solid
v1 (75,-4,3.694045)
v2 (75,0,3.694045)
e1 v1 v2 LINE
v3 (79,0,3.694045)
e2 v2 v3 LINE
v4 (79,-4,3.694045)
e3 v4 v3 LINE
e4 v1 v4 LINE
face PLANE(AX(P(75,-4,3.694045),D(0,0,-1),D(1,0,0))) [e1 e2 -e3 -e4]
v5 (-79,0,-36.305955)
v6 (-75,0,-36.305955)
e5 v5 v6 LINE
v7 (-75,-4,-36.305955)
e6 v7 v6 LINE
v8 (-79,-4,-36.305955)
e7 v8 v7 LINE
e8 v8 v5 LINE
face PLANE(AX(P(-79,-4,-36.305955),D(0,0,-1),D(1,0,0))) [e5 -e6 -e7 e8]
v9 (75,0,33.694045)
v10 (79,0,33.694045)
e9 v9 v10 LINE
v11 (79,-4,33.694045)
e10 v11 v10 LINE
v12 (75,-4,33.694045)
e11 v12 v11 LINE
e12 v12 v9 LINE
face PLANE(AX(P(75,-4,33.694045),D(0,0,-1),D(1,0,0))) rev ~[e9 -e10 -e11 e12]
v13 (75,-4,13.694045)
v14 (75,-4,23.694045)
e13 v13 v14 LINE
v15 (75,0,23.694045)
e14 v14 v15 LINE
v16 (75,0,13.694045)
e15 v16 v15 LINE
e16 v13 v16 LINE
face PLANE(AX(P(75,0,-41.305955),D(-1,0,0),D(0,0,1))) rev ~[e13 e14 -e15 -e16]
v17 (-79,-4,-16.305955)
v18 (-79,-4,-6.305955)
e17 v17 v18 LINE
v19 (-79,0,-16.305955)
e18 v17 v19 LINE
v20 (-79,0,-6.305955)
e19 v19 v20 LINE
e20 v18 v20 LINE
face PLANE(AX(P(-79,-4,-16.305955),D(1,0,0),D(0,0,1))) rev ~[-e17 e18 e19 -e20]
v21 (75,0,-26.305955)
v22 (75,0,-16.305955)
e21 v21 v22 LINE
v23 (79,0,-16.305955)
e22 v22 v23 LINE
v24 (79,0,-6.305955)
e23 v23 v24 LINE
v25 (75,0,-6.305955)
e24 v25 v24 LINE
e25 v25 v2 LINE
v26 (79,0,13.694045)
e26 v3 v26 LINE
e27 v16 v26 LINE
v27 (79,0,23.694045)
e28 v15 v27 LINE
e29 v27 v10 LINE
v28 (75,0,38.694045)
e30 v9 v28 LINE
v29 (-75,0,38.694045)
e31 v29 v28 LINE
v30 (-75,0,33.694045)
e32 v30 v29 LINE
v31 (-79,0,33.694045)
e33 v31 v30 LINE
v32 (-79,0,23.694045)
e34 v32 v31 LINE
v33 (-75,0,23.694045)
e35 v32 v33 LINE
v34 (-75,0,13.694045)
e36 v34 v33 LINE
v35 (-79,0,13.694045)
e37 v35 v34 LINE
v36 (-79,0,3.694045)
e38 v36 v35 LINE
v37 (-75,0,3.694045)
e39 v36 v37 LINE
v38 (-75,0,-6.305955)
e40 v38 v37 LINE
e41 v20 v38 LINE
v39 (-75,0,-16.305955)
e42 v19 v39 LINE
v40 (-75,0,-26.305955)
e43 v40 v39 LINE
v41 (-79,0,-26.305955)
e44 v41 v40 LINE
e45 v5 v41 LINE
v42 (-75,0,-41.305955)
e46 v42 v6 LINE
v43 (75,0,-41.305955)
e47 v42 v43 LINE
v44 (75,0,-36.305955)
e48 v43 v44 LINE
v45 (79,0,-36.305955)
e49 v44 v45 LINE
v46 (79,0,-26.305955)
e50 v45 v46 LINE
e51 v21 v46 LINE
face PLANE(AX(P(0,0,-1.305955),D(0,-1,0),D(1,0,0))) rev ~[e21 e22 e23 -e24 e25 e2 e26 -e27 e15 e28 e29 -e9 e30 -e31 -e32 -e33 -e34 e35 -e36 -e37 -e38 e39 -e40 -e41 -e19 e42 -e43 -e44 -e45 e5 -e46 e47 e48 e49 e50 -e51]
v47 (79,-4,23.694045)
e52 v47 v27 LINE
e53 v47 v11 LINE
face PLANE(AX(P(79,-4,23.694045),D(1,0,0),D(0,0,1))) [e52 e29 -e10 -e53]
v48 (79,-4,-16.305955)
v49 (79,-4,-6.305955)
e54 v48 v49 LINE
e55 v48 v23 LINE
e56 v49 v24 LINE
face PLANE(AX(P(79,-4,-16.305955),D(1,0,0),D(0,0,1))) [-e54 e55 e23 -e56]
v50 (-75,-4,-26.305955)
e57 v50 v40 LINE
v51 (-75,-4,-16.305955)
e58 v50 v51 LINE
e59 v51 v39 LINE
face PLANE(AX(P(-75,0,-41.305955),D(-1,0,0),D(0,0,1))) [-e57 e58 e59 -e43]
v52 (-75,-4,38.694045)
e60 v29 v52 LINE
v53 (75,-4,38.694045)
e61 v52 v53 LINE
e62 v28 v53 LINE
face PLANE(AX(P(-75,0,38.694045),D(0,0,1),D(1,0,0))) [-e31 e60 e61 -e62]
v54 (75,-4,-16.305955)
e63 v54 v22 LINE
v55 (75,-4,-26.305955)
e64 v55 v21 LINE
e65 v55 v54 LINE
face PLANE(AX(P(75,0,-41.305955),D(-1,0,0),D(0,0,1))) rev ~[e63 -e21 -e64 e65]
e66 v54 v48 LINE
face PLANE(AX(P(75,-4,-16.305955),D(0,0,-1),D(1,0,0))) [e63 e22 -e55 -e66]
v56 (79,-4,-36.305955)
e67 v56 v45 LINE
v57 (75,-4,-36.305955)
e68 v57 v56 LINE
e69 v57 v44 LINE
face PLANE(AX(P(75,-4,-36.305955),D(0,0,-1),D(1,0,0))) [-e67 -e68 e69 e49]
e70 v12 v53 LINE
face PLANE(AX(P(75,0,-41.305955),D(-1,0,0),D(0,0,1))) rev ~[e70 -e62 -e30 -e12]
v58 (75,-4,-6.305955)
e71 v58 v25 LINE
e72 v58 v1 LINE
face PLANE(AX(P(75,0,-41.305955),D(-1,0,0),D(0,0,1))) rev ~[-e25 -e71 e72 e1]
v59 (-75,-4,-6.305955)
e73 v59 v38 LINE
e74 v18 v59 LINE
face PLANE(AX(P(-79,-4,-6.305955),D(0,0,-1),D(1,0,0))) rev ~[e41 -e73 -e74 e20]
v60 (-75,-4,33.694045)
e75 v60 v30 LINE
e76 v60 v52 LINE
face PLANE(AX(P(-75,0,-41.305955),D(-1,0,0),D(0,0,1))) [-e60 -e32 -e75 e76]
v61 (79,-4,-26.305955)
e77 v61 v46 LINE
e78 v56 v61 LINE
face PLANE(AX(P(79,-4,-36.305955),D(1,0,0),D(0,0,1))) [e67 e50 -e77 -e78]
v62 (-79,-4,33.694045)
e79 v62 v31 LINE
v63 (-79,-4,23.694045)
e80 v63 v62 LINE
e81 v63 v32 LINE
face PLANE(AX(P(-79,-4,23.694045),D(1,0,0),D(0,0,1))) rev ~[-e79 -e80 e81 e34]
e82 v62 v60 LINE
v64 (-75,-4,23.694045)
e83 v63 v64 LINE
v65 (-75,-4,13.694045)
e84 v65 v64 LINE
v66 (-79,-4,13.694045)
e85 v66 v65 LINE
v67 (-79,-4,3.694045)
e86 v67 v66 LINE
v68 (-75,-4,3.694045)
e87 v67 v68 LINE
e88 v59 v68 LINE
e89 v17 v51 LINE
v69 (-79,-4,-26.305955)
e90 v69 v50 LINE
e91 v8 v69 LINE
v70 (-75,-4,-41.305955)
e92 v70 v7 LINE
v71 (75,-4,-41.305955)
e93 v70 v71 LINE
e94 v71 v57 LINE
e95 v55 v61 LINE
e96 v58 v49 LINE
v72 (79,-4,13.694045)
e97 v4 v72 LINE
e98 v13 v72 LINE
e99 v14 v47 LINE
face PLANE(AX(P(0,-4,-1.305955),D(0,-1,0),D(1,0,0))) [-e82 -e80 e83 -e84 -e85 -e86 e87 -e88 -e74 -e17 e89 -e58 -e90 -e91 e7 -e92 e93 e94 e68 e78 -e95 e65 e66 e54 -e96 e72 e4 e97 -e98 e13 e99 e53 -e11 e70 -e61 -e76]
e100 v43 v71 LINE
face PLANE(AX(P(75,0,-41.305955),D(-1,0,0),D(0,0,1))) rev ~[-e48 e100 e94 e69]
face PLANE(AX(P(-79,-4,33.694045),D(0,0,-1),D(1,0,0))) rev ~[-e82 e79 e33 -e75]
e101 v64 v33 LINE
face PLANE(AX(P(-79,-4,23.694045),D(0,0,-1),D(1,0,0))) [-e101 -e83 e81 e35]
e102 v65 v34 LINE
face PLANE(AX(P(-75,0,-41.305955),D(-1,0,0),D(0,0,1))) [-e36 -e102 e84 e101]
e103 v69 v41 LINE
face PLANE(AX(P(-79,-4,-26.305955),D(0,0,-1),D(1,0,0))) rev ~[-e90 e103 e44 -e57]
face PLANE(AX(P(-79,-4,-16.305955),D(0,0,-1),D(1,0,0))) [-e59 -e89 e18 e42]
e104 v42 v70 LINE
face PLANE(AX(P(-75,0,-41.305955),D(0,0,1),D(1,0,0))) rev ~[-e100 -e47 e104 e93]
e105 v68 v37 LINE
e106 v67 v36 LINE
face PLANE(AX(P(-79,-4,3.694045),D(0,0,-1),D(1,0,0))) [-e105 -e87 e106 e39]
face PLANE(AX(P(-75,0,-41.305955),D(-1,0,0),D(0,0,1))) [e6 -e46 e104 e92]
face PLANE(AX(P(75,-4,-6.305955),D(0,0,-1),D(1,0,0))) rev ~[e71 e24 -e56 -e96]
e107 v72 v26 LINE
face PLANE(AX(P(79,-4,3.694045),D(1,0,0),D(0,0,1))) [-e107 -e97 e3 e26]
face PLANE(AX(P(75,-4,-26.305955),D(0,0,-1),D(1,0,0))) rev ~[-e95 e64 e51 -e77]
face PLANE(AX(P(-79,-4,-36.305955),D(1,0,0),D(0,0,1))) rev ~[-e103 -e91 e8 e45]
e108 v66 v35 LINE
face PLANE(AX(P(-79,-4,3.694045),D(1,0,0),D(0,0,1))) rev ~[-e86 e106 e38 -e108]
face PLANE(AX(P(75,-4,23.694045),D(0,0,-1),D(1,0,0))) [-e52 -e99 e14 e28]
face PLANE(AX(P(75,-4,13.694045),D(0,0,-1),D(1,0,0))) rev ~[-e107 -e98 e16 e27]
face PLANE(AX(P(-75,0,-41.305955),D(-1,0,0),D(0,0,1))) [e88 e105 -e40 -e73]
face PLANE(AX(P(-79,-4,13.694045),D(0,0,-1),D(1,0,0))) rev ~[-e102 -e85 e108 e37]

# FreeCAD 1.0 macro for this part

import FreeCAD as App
import Part
import Sketcher


def add_polygon(sketch, points):
    """Adds a closed chain of lines whose ends are joined by coincident constraints."""
    first, n = sketch.GeometryCount, len(points)
    for a, b in zip(points, points[1:] + points[:1]):
        sketch.addGeometry(Part.LineSegment(App.Vector(*a, 0), App.Vector(*b, 0)), False)
    for i in range(n):
        sketch.addConstraint(Sketcher.Constraint("Coincident", first + i, 2, first + (i + 1) % n, 1))

doc = App.newDocument("Part")
body = doc.addObject("PartDesign::Body", "Body")

# Sketch on XZ plane
sketch1 = body.newObject("Sketcher::SketchObject", "Sketch")
sketch1.AttachmentSupport = (doc.getObject("XZ_Plane"), [""])
sketch1.MapMode = "FlatFace"
add_polygon(sketch1, [(-75, 39), (-75, -41), (75, -41), (75, 39)])  # lines 0-3
sketch1.addConstraint(Sketcher.Constraint("Vertical", 0))
sketch1.addConstraint(Sketcher.Constraint("Horizontal", 1))
sketch1.addConstraint(Sketcher.Constraint("Vertical", 2))
sketch1.addConstraint(Sketcher.Constraint("Horizontal", 3))
sketch1.addConstraint(Sketcher.Constraint("DistanceX", 1, 1, 1, 2, 150.0))
sketch1.addConstraint(Sketcher.Constraint("DistanceY", 0, 2, 0, 1, 80.0))
sketch1.addConstraint(Sketcher.Constraint("DistanceX", 0, 2, -1, 1, 75.0))
sketch1.addConstraint(Sketcher.Constraint("DistanceY", 0, 2, -1, 1, 41.305955))
pad1 = body.newObject("PartDesign::Pad", "Pad")
pad1.Profile = sketch1
pad1.Length = 4

# Sketch on XZ plane
sketch2 = body.newObject("Sketcher::SketchObject", "Sketch001")
sketch2.AttachmentSupport = (doc.getObject("XZ_Plane"), [""])
sketch2.MapMode = "FlatFace"
sketch2.AttachmentOffset = App.Placement(App.Vector(0, 0, 4), App.Rotation())
add_polygon(sketch2, [(-79, 33.7), (-79, 23.7), (-75, 23.7), (-75, 33.7)])  # lines 0-3
add_polygon(sketch2, [(-79, 13.7), (-79, 3.7), (-75, 3.7), (-75, 13.7)])  # lines 4-7
add_polygon(sketch2, [(-79, -6.3), (-79, -16.3), (-75, -16.3), (-75, -6.3)])  # lines 8-11
add_polygon(sketch2, [(-79, -26.3), (-79, -36.3), (-75, -36.3), (-75, -26.3)])  # lines 12-15
add_polygon(sketch2, [(75, 13.7), (75, 3.7), (79, 3.7), (79, 13.7)])  # lines 16-19
add_polygon(sketch2, [(75, 33.7), (75, 23.7), (79, 23.7), (79, 33.7)])  # lines 20-23
add_polygon(sketch2, [(75, -6.3), (75, -16.3), (79, -16.3), (79, -6.3)])  # lines 24-27
add_polygon(sketch2, [(75, -26.3), (75, -36.3), (79, -36.3), (79, -26.3)])  # lines 28-31
sketch2.addConstraint(Sketcher.Constraint("Vertical", 0))
sketch2.addConstraint(Sketcher.Constraint("Horizontal", 1))
sketch2.addConstraint(Sketcher.Constraint("Vertical", 2))
sketch2.addConstraint(Sketcher.Constraint("Horizontal", 3))
sketch2.addConstraint(Sketcher.Constraint("Vertical", 4))
sketch2.addConstraint(Sketcher.Constraint("Horizontal", 5))
sketch2.addConstraint(Sketcher.Constraint("Vertical", 6))
sketch2.addConstraint(Sketcher.Constraint("Horizontal", 7))
sketch2.addConstraint(Sketcher.Constraint("Vertical", 8))
sketch2.addConstraint(Sketcher.Constraint("Horizontal", 9))
sketch2.addConstraint(Sketcher.Constraint("Vertical", 10))
sketch2.addConstraint(Sketcher.Constraint("Horizontal", 11))
sketch2.addConstraint(Sketcher.Constraint("Vertical", 12))
sketch2.addConstraint(Sketcher.Constraint("Horizontal", 13))
sketch2.addConstraint(Sketcher.Constraint("Vertical", 14))
sketch2.addConstraint(Sketcher.Constraint("Horizontal", 15))
sketch2.addConstraint(Sketcher.Constraint("Vertical", 16))
sketch2.addConstraint(Sketcher.Constraint("Horizontal", 17))
sketch2.addConstraint(Sketcher.Constraint("Vertical", 18))
sketch2.addConstraint(Sketcher.Constraint("Horizontal", 19))
sketch2.addConstraint(Sketcher.Constraint("Vertical", 20))
sketch2.addConstraint(Sketcher.Constraint("Horizontal", 21))
sketch2.addConstraint(Sketcher.Constraint("Vertical", 22))
sketch2.addConstraint(Sketcher.Constraint("Horizontal", 23))
sketch2.addConstraint(Sketcher.Constraint("Vertical", 24))
sketch2.addConstraint(Sketcher.Constraint("Horizontal", 25))
sketch2.addConstraint(Sketcher.Constraint("Vertical", 26))
sketch2.addConstraint(Sketcher.Constraint("Horizontal", 27))
sketch2.addConstraint(Sketcher.Constraint("Vertical", 28))
sketch2.addConstraint(Sketcher.Constraint("Horizontal", 29))
sketch2.addConstraint(Sketcher.Constraint("Vertical", 30))
sketch2.addConstraint(Sketcher.Constraint("Horizontal", 31))
sketch2.addConstraint(Sketcher.Constraint("Symmetric", 5, 2, 16, 2, -2))
sketch2.addConstraint(Sketcher.Constraint("Symmetric", 7, 2, 18, 2, -2))
sketch2.addConstraint(Sketcher.Constraint("Symmetric", 1, 2, 20, 2, -2))
sketch2.addConstraint(Sketcher.Constraint("Symmetric", 3, 2, 22, 2, -2))
sketch2.addConstraint(Sketcher.Constraint("Symmetric", 9, 2, 24, 2, -2))
sketch2.addConstraint(Sketcher.Constraint("Symmetric", 11, 2, 26, 2, -2))
sketch2.addConstraint(Sketcher.Constraint("Symmetric", 13, 2, 28, 2, -2))
sketch2.addConstraint(Sketcher.Constraint("Symmetric", 15, 2, 30, 2, -2))
sketch2.addConstraint(Sketcher.Constraint("Vertical", 3, 2, 4, 2))
sketch2.addConstraint(Sketcher.Constraint("Vertical", 2, 2, 5, 2))
sketch2.addConstraint(Sketcher.Constraint("Vertical", 7, 2, 8, 2))
sketch2.addConstraint(Sketcher.Constraint("Vertical", 6, 2, 9, 2))
sketch2.addConstraint(Sketcher.Constraint("Vertical", 11, 2, 12, 2))
sketch2.addConstraint(Sketcher.Constraint("Vertical", 10, 2, 13, 2))
sketch2.addConstraint(Sketcher.Constraint("Equal", 2, 4))
sketch2.addConstraint(Sketcher.Constraint("Equal", 6, 8))
sketch2.addConstraint(Sketcher.Constraint("Equal", 10, 12))
sketch2.addConstraint(Sketcher.Constraint("DistanceX", 1, 1, 1, 2, 4.0))
sketch2.addConstraint(Sketcher.Constraint("DistanceY", 0, 2, 0, 1, 10.0))
sketch2.addConstraint(Sketcher.Constraint("DistanceX", 0, 2, -1, 1, 79.0))
sketch2.addConstraint(Sketcher.Constraint("DistanceY", 4, 2, 0, 2, 20.0))
sketch2.addConstraint(Sketcher.Constraint("DistanceY", 8, 2, 4, 2, 20.0))
sketch2.addConstraint(Sketcher.Constraint("DistanceY", 12, 2, 8, 2, 20.0))
sketch2.addConstraint(Sketcher.Constraint("DistanceY", -1, 1, 0, 2, 23.694045))
pad2 = body.newObject("PartDesign::Pad", "Pad001")
pad2.Profile = sketch2
pad2.Length = 4
pad2.Reversed = True

doc.recompute()
